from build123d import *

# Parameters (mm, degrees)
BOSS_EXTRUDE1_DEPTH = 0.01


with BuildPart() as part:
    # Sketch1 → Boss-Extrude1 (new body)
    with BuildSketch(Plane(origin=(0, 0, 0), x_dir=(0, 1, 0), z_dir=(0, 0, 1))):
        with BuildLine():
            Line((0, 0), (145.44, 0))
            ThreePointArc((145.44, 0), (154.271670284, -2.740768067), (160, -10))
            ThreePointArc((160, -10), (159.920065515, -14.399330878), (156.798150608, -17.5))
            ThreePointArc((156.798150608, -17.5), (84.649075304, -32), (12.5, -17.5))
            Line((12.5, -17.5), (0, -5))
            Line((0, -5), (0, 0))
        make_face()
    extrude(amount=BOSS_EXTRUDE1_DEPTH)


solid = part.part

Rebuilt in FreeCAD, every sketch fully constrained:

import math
import FreeCAD as App
import Part
import Sketcher

V = App.Vector
Q = App.Units.Quantity

doc = App.newDocument("Part")
body = doc.addObject("PartDesign::Body", "Body")

sketch1 = body.newObject("Sketcher::SketchObject", "Sketch")
sketch1.AttachmentSupport = (doc.getObject("XY_Plane"), [""])
sketch1.MapMode = "FlatFace"
sketch1.addGeometry(Part.LineSegment(V(0, 145.44, 0), V(0, 0, 0)), False)
sketch1.addGeometry(Part.LineSegment(V(0, 0, 0), V(5, 0, 0)), False)
sketch1.addGeometry(Part.LineSegment(V(5, 0, 0), V(17.5, 12.5, 0)), False)
sketch1.addGeometry(Part.ArcOfCircle(Part.Circle(V(-154.749623, 84.649075, 0), V(0, 0, 1), 186.749623), math.radians(-22.727029), math.radians(22.727029)), False)
sketch1.addGeometry(Part.ArcOfCircle(Part.Circle(V(12.101126, 154.53676, 0), V(0, 0, 1), 5.853352), math.radians(22.727029), math.radians(111.036414)), False)
sketch1.addGeometry(Part.ArcOfCircle(Part.Circle(V(15.59968, 145.44, 0), V(0, 0, 1), 15.59968), math.radians(111.036414), math.radians(180)), False)
sketch1.addConstraint(Sketcher.Constraint("Coincident", 0, 2, 1, 1))
sketch1.addConstraint(Sketcher.Constraint("Coincident", 1, 2, 2, 1))
sketch1.addConstraint(Sketcher.Constraint("Coincident", 2, 2, 3, 1))
sketch1.addConstraint(Sketcher.Constraint("Coincident", 3, 2, 4, 1))
sketch1.addConstraint(Sketcher.Constraint("Coincident", 4, 2, 5, 1))
sketch1.addConstraint(Sketcher.Constraint("Coincident", 5, 2, 0, 1))
sketch1.addConstraint(Sketcher.Constraint("Vertical", 0))
sketch1.addConstraint(Sketcher.Constraint("Horizontal", 1))
sketch1.addConstraint(Sketcher.Constraint("Coincident", 0, 2, -1, 1))
sketch1.addConstraint(Sketcher.Constraint("DistanceX", 1, 1, 1, 2, Q("5 mm")))
sketch1.addConstraint(Sketcher.Constraint("DistanceX", -1, 1, 4, 2, Q("10 mm")))
sketch1.addConstraint(Sketcher.Constraint("DistanceY", -1, 1, 4, 2, Q("160 mm")))
sketch1.addConstraint(Sketcher.Constraint("DistanceY", 0, 2, 0, 1, Q("145.44 mm")))
sketch1.addConstraint(Sketcher.Constraint("DistanceX", -1, 1, 2, 2, Q("17.5 mm")))
sketch1.addConstraint(Sketcher.Constraint("DistanceY", -1, 1, 2, 2, Q("12.5 mm")))
sketch1.addConstraint(Sketcher.Constraint("DistanceX", -1, 1, 3, 2, Q("17.5 mm")))
sketch1.addConstraint(Sketcher.Constraint("DistanceY", -1, 1, 5, 3, Q("145.44 mm")))
sketch1.addConstraint(Sketcher.Constraint("Radius", 4, Q("5.853352 mm")))
sketch1.addConstraint(Sketcher.Constraint("Radius", 3, Q("186.749623 mm")))
sketch1.addConstraint(Sketcher.Constraint("DistanceY", -1, 1, 4, 3, Q("154.53676 mm")))
pad1 = body.newObject("PartDesign::Pad", "Pad")
pad1.Profile = sketch1
pad1.Length = 0.01

doc.recompute()
